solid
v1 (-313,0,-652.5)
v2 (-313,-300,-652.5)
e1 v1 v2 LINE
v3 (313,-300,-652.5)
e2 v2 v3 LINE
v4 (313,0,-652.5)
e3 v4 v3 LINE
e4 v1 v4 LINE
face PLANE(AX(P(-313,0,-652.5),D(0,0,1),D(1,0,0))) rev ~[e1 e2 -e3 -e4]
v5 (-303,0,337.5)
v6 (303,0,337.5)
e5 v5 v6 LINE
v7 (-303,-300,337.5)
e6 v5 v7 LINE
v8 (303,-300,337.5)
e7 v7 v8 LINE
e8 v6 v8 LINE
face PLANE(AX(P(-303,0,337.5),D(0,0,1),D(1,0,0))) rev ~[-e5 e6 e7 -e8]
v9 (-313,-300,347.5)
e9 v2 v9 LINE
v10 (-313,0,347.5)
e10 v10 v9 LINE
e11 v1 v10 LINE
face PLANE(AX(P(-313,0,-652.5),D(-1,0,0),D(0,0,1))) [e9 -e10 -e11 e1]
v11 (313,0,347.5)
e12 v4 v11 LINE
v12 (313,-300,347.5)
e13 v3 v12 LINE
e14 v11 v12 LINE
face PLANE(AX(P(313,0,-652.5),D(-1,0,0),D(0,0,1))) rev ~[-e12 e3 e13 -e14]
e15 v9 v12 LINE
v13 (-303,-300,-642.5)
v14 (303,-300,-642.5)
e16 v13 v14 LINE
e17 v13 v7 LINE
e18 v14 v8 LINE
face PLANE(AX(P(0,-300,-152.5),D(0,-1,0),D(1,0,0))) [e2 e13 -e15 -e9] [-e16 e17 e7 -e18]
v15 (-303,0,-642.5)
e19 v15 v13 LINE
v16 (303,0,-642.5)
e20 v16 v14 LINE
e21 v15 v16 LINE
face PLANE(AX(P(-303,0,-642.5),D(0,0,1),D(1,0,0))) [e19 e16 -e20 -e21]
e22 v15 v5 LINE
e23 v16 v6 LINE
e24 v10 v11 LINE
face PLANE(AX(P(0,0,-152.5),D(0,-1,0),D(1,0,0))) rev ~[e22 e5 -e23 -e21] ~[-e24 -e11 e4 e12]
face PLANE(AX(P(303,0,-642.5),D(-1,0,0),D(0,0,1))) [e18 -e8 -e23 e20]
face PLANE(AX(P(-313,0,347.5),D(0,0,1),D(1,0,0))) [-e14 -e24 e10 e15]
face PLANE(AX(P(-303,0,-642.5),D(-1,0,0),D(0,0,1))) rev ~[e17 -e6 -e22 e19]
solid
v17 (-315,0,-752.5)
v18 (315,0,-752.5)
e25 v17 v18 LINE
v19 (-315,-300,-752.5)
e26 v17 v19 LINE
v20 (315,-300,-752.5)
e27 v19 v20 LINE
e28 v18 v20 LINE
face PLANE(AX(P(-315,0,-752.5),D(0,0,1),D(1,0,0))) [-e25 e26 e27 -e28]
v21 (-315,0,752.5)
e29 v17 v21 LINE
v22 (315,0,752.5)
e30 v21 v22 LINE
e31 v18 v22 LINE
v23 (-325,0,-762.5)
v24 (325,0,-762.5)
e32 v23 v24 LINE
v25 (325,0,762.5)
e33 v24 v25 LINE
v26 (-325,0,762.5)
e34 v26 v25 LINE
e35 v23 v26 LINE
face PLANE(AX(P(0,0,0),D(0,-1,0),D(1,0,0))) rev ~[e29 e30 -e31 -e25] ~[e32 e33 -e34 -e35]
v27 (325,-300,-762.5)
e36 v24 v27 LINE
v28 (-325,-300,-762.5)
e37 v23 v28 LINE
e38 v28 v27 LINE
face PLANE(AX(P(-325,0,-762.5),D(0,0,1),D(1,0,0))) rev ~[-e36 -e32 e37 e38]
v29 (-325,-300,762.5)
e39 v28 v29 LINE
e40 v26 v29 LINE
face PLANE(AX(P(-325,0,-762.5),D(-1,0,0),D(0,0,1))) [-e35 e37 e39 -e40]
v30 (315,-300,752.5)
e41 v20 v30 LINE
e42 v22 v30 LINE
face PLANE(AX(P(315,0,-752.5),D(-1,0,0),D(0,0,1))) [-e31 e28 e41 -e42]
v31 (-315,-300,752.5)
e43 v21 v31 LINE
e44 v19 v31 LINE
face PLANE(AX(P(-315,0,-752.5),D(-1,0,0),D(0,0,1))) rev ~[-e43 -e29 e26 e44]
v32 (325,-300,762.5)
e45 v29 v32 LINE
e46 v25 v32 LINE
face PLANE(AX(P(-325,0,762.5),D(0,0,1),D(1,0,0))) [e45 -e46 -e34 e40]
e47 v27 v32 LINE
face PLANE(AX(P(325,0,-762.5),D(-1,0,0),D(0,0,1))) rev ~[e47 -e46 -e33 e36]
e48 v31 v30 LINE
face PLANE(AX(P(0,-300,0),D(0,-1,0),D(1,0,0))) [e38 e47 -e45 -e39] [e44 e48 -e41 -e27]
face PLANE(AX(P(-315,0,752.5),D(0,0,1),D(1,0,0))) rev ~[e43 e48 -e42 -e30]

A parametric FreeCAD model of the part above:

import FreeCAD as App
import Part
import Sketcher


def add_polygon(sketch, points):
    """Adds a closed chain of lines whose ends are joined by coincident constraints."""
    first, n = sketch.GeometryCount, len(points)
    for a, b in zip(points, points[1:] + points[:1]):
        sketch.addGeometry(Part.LineSegment(App.Vector(*a, 0), App.Vector(*b, 0)), False)
    for i in range(n):
        sketch.addConstraint(Sketcher.Constraint("Coincident", first + i, 2, first + (i + 1) % n, 1))

doc = App.newDocument("Part")
body = doc.addObject("PartDesign::Body", "Body")

# Sketch on XZ plane
sketch1 = doc.addObject("Sketcher::SketchObject", "Sketch")
body.addObject(sketch1)
sketch1.AttachmentSupport = (doc.XZ_Plane, [""])
sketch1.MapMode = "FlatFace"
add_polygon(sketch1, [(-325, 762), (-325, -762), (325, -762), (325, 762)])  # lines 0-3
add_polygon(sketch1, [(315, -752), (-315, -752), (-315, 752), (315, 752)])  # lines 4-7
sketch1.addConstraint([
    Sketcher.Constraint("Vertical", 0),
    Sketcher.Constraint("Horizontal", 1),
    Sketcher.Constraint("Vertical", 2),
    Sketcher.Constraint("Horizontal", 3),
    Sketcher.Constraint("Horizontal", 4),
    Sketcher.Constraint("Vertical", 5),
    Sketcher.Constraint("Horizontal", 6),
    Sketcher.Constraint("Vertical", 7),
    Sketcher.Constraint("Symmetric", 0, 2, 2, 2, -1, 1),
    Sketcher.Constraint("Symmetric", 4, 2, 6, 2, -1, 1),
    Sketcher.Constraint("DistanceX", 1, 1, 1, 2, 650.0),
    Sketcher.Constraint("DistanceX", 4, 2, 4, 1, 630.0),
    Sketcher.Constraint("DistanceY", 0, 2, 0, 1, 1525.0),
    Sketcher.Constraint("DistanceY", 5, 1, 5, 2, 1505.0),
])
pad1 = doc.addObject("PartDesign::Pad", "Pad")
body.addObject(pad1)
pad1.Profile = sketch1
pad1.Length = 300
body2 = doc.addObject("PartDesign::Body", "Body001")

# Sketch on XZ plane
sketch2 = doc.addObject("Sketcher::SketchObject", "Sketch001")
body2.addObject(sketch2)
sketch2.AttachmentSupport = (doc.getObject("XZ_Plane001"), [""])
sketch2.MapMode = "FlatFace"
add_polygon(sketch2, [(-313, 348), (-313, -652), (313, -652), (313, 348)])  # lines 0-3
add_polygon(sketch2, [(303, -642), (-303, -642), (-303, 338), (303, 338)])  # lines 4-7
sketch2.addConstraint([
    Sketcher.Constraint("Vertical", 0),
    Sketcher.Constraint("Horizontal", 1),
    Sketcher.Constraint("Vertical", 2),
    Sketcher.Constraint("Horizontal", 3),
    Sketcher.Constraint("Horizontal", 4),
    Sketcher.Constraint("Vertical", 5),
    Sketcher.Constraint("Horizontal", 6),
    Sketcher.Constraint("Vertical", 7),
    Sketcher.Constraint("DistanceX", 1, 1, 1, 2, 626.0),
    Sketcher.Constraint("DistanceX", 4, 2, 4, 1, 606.0),
    Sketcher.Constraint("DistanceY", 0, 2, 0, 1, 1000.0),
    Sketcher.Constraint("DistanceY", 5, 1, 5, 2, 980.0),
    Sketcher.Constraint("DistanceX", 0, 2, -1, 1, 313.0),
    Sketcher.Constraint("DistanceX", 4, 2, -1, 1, 303.0),
    Sketcher.Constraint("DistanceY", 0, 2, 4, 2, 10.0),
    Sketcher.Constraint("DistanceY", 0, 2, -1, 1, 652.5),
])
pad2 = doc.addObject("PartDesign::Pad", "Pad001")
body2.addObject(pad2)
pad2.Profile = sketch2
pad2.Length = 300

doc.recompute()
